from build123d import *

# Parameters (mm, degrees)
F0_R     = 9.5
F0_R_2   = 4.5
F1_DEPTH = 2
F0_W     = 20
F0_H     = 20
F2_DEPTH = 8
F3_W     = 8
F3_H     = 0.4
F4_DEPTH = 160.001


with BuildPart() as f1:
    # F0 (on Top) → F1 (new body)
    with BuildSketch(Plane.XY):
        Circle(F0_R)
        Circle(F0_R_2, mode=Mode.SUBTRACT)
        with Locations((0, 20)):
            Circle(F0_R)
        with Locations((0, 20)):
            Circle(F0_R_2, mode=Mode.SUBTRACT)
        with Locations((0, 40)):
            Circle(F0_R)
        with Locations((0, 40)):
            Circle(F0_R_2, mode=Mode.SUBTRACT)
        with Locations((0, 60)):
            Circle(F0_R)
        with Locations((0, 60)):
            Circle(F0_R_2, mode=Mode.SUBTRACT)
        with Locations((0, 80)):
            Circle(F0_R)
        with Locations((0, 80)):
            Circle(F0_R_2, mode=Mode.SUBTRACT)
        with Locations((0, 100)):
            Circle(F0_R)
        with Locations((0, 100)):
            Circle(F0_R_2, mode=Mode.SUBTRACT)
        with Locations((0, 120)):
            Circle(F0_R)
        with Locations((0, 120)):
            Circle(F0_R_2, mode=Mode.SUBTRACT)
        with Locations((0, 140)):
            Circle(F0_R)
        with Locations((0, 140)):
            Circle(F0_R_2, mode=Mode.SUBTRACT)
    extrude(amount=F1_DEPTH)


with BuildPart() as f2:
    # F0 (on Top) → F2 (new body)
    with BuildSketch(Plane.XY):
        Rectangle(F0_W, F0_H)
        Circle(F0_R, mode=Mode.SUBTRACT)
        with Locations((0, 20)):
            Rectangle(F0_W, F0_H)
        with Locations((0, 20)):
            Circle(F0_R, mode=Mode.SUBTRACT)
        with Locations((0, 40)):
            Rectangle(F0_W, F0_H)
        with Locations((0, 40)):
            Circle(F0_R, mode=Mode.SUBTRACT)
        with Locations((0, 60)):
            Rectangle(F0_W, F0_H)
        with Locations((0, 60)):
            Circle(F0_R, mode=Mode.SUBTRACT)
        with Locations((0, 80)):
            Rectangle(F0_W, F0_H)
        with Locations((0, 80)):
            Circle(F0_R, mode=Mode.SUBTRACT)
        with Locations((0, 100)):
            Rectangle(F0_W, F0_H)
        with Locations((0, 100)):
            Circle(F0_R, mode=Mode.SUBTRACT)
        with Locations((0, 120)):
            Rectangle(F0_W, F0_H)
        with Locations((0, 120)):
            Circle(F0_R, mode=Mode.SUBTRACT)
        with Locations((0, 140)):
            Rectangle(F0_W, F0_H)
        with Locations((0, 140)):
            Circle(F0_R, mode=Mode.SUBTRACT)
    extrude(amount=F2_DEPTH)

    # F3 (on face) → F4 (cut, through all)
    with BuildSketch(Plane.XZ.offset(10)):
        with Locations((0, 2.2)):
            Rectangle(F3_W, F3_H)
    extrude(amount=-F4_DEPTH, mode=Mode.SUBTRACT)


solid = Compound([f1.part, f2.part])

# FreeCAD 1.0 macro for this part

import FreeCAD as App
import Part
import Sketcher
from FreeCAD import Vector

doc = App.newDocument("Part")
body = doc.addObject("PartDesign::Body", "Body")
body.AllowCompound = True

# Sketch on XY plane
sketch1 = body.newObject("Sketcher::SketchObject", "Sketch")
sketch1.AttachmentSupport = (doc.getObject("XY_Plane"), [""])
sketch1.MapMode = "FlatFace"
sketch1.addGeometry(Part.Circle(Vector(0, 0, 0), Vector(0, 0, 1), 9.5), False)
sketch1.addGeometry(Part.Circle(Vector(0, 0, 0), Vector(0, 0, 1), 4.5), False)
sketch1.addGeometry(Part.Circle(Vector(0, 20, 0), Vector(0, 0, 1), 9.5), False)
sketch1.addGeometry(Part.Circle(Vector(0, 20, 0), Vector(0, 0, 1), 4.5), False)
sketch1.addGeometry(Part.Circle(Vector(0, 40, 0), Vector(0, 0, 1), 9.5), False)
sketch1.addGeometry(Part.Circle(Vector(0, 40, 0), Vector(0, 0, 1), 4.5), False)
sketch1.addGeometry(Part.Circle(Vector(0, 60, 0), Vector(0, 0, 1), 9.5), False)
sketch1.addGeometry(Part.Circle(Vector(0, 60, 0), Vector(0, 0, 1), 4.5), False)
sketch1.addGeometry(Part.Circle(Vector(0, 80, 0), Vector(0, 0, 1), 9.5), False)
sketch1.addGeometry(Part.Circle(Vector(0, 80, 0), Vector(0, 0, 1), 4.5), False)
sketch1.addGeometry(Part.Circle(Vector(0, 100, 0), Vector(0, 0, 1), 9.5), False)
sketch1.addGeometry(Part.Circle(Vector(0, 100, 0), Vector(0, 0, 1), 4.5), False)
sketch1.addGeometry(Part.Circle(Vector(0, 120, 0), Vector(0, 0, 1), 9.5), False)
sketch1.addGeometry(Part.Circle(Vector(0, 120, 0), Vector(0, 0, 1), 4.5), False)
sketch1.addGeometry(Part.Circle(Vector(0, 140, 0), Vector(0, 0, 1), 9.5), False)
sketch1.addGeometry(Part.Circle(Vector(0, 140, 0), Vector(0, 0, 1), 4.5), False)
sketch1.addConstraint(Sketcher.Constraint("Coincident", 0, 3, -1, 1))
sketch1.addConstraint(Sketcher.Constraint("Coincident", 1, 3, -1, 1))
sketch1.addConstraint(Sketcher.Constraint("Coincident", 3, 3, 2, 3))
sketch1.addConstraint(Sketcher.Constraint("Coincident", 5, 3, 4, 3))
sketch1.addConstraint(Sketcher.Constraint("Coincident", 7, 3, 6, 3))
sketch1.addConstraint(Sketcher.Constraint("Coincident", 9, 3, 8, 3))
sketch1.addConstraint(Sketcher.Constraint("Coincident", 11, 3, 10, 3))
sketch1.addConstraint(Sketcher.Constraint("Coincident", 13, 3, 12, 3))
sketch1.addConstraint(Sketcher.Constraint("Coincident", 15, 3, 14, 3))
sketch1.addConstraint(Sketcher.Constraint("Equal", 0, 2))
sketch1.addConstraint(Sketcher.Constraint("Equal", 1, 3))
sketch1.addConstraint(Sketcher.Constraint("Equal", 2, 4))
sketch1.addConstraint(Sketcher.Constraint("Equal", 3, 5))
sketch1.addConstraint(Sketcher.Constraint("Equal", 4, 6))
sketch1.addConstraint(Sketcher.Constraint("Equal", 5, 7))
sketch1.addConstraint(Sketcher.Constraint("Equal", 6, 8))
sketch1.addConstraint(Sketcher.Constraint("Equal", 7, 9))
sketch1.addConstraint(Sketcher.Constraint("Equal", 8, 10))
sketch1.addConstraint(Sketcher.Constraint("Equal", 9, 11))
sketch1.addConstraint(Sketcher.Constraint("Equal", 10, 12))
sketch1.addConstraint(Sketcher.Constraint("Equal", 11, 13))
sketch1.addConstraint(Sketcher.Constraint("Equal", 12, 14))
sketch1.addConstraint(Sketcher.Constraint("Equal", 13, 15))
sketch1.addConstraint(Sketcher.Constraint("PointOnObject", 2, 3, -2))
sketch1.addConstraint(Sketcher.Constraint("PointOnObject", 4, 3, -2))
sketch1.addConstraint(Sketcher.Constraint("PointOnObject", 6, 3, -2))
sketch1.addConstraint(Sketcher.Constraint("PointOnObject", 8, 3, -2))
sketch1.addConstraint(Sketcher.Constraint("PointOnObject", 10, 3, -2))
sketch1.addConstraint(Sketcher.Constraint("PointOnObject", 12, 3, -2))
sketch1.addConstraint(Sketcher.Constraint("PointOnObject", 14, 3, -2))
sketch1.addConstraint(Sketcher.Constraint("Diameter", 0, 19.0))
sketch1.addConstraint(Sketcher.Constraint("Diameter", 1, 9.0))
sketch1.addConstraint(Sketcher.Constraint("DistanceY", -1, 1, 2, 3, 20.0))
sketch1.addConstraint(Sketcher.Constraint("DistanceY", -1, 1, 4, 3, 40.0))
sketch1.addConstraint(Sketcher.Constraint("DistanceY", -1, 1, 6, 3, 60.0))
sketch1.addConstraint(Sketcher.Constraint("DistanceY", -1, 1, 8, 3, 80.0))
sketch1.addConstraint(Sketcher.Constraint("DistanceY", -1, 1, 10, 3, 100.0))
sketch1.addConstraint(Sketcher.Constraint("DistanceY", -1, 1, 12, 3, 120.0))
sketch1.addConstraint(Sketcher.Constraint("DistanceY", -1, 1, 14, 3, 140.0))
pad1 = body.newObject("PartDesign::Pad", "Pad")
pad1.Profile = sketch1
pad1.Length = 2
body2 = doc.addObject("PartDesign::Body", "Body001")

# Sketch on XY plane
sketch2 = body2.newObject("Sketcher::SketchObject", "Sketch001")
sketch2.AttachmentSupport = (doc.getObject("XY_Plane001"), [""])
sketch2.MapMode = "FlatFace"
sketch2.addGeometry(Part.LineSegment(Vector(-10, -10, 0), Vector(10, -10, 0)), False)
sketch2.addGeometry(Part.LineSegment(Vector(10, -10, 0), Vector(10, 150, 0)), False)
sketch2.addGeometry(Part.LineSegment(Vector(10, 150, 0), Vector(-10, 150, 0)), False)
sketch2.addGeometry(Part.LineSegment(Vector(-10, 150, 0), Vector(-10, -10, 0)), False)
sketch2.addGeometry(Part.Circle(Vector(0, 0, 0), Vector(0, 0, 1), 10), False)
sketch2.addGeometry(Part.Circle(Vector(0, 20, 0), Vector(0, 0, 1), 10), False)
sketch2.addGeometry(Part.Circle(Vector(0, 40, 0), Vector(0, 0, 1), 10), False)
sketch2.addGeometry(Part.Circle(Vector(0, 60, 0), Vector(0, 0, 1), 10), False)
sketch2.addGeometry(Part.Circle(Vector(0, 80, 0), Vector(0, 0, 1), 10), False)
sketch2.addGeometry(Part.Circle(Vector(0, 100, 0), Vector(0, 0, 1), 10), False)
sketch2.addGeometry(Part.Circle(Vector(0, 120, 0), Vector(0, 0, 1), 10), False)
sketch2.addGeometry(Part.Circle(Vector(0, 140, 0), Vector(0, 0, 1), 10), False)
sketch2.addConstraint(Sketcher.Constraint("Coincident", 0, 2, 1, 1))
sketch2.addConstraint(Sketcher.Constraint("Coincident", 1, 2, 2, 1))
sketch2.addConstraint(Sketcher.Constraint("Coincident", 2, 2, 3, 1))
sketch2.addConstraint(Sketcher.Constraint("Coincident", 3, 2, 0, 1))
sketch2.addConstraint(Sketcher.Constraint("Horizontal", 0))
sketch2.addConstraint(Sketcher.Constraint("Vertical", 1))
sketch2.addConstraint(Sketcher.Constraint("Horizontal", 2))
sketch2.addConstraint(Sketcher.Constraint("Vertical", 3))
sketch2.addConstraint(Sketcher.Constraint("Coincident", 4, 3, -1, 1))
sketch2.addConstraint(Sketcher.Constraint("Equal", 4, 5))
sketch2.addConstraint(Sketcher.Constraint("Equal", 5, 6))
sketch2.addConstraint(Sketcher.Constraint("Equal", 6, 7))
sketch2.addConstraint(Sketcher.Constraint("Equal", 7, 8))
sketch2.addConstraint(Sketcher.Constraint("Equal", 8, 9))
sketch2.addConstraint(Sketcher.Constraint("Equal", 9, 10))
sketch2.addConstraint(Sketcher.Constraint("Equal", 10, 11))
sketch2.addConstraint(Sketcher.Constraint("PointOnObject", 5, 3, -2))
sketch2.addConstraint(Sketcher.Constraint("PointOnObject", 6, 3, -2))
sketch2.addConstraint(Sketcher.Constraint("PointOnObject", 7, 3, -2))
sketch2.addConstraint(Sketcher.Constraint("PointOnObject", 8, 3, -2))
sketch2.addConstraint(Sketcher.Constraint("PointOnObject", 9, 3, -2))
sketch2.addConstraint(Sketcher.Constraint("PointOnObject", 10, 3, -2))
sketch2.addConstraint(Sketcher.Constraint("PointOnObject", 11, 3, -2))
sketch2.addConstraint(Sketcher.Constraint("Diameter", 4, 19.0))
sketch2.addConstraint(Sketcher.Constraint("DistanceX", 0, 1, 0, 2, 20.0))
sketch2.addConstraint(Sketcher.Constraint("DistanceY", 1, 1, 1, 2, 160.0))
sketch2.addConstraint(Sketcher.Constraint("DistanceY", -1, 1, 5, 3, 20.0))
sketch2.addConstraint(Sketcher.Constraint("DistanceY", -1, 1, 6, 3, 40.0))
sketch2.addConstraint(Sketcher.Constraint("DistanceY", -1, 1, 7, 3, 60.0))
sketch2.addConstraint(Sketcher.Constraint("DistanceY", -1, 1, 8, 3, 80.0))
sketch2.addConstraint(Sketcher.Constraint("DistanceY", -1, 1, 9, 3, 100.0))
sketch2.addConstraint(Sketcher.Constraint("DistanceY", -1, 1, 10, 3, 120.0))
sketch2.addConstraint(Sketcher.Constraint("DistanceY", -1, 1, 11, 3, 140.0))
sketch2.addConstraint(Sketcher.Constraint("DistanceX", -1, 1, 0, 2, 10.0))
sketch2.addConstraint(Sketcher.Constraint("DistanceY", 0, 2, -1, 1, 10.0))
pad2 = body2.newObject("PartDesign::Pad", "Pad001")
pad2.Profile = sketch2
pad2.Length = 8

# Sketch on XZ plane
sketch3 = body2.newObject("Sketcher::SketchObject", "Sketch002")
sketch3.AttachmentSupport = (doc.getObject("XZ_Plane001"), [""])
sketch3.MapMode = "FlatFace"
sketch3.AttachmentOffset = App.Placement(Vector(0, 0, 10), App.Rotation())
sketch3.addGeometry(Part.LineSegment(Vector(-4, 2.4, 0), Vector(-4, 2, 0)), False)
sketch3.addGeometry(Part.LineSegment(Vector(-4, 2, 0), Vector(4, 2, 0)), False)
sketch3.addGeometry(Part.LineSegment(Vector(4, 2, 0), Vector(4, 2.4, 0)), False)
sketch3.addGeometry(Part.LineSegment(Vector(4, 2.4, 0), Vector(-4, 2.4, 0)), False)
sketch3.addConstraint(Sketcher.Constraint("Coincident", 0, 2, 1, 1))
sketch3.addConstraint(Sketcher.Constraint("Coincident", 1, 2, 2, 1))
sketch3.addConstraint(Sketcher.Constraint("Coincident", 2, 2, 3, 1))
sketch3.addConstraint(Sketcher.Constraint("Coincident", 3, 2, 0, 1))
sketch3.addConstraint(Sketcher.Constraint("Vertical", 0))
sketch3.addConstraint(Sketcher.Constraint("Horizontal", 1))
sketch3.addConstraint(Sketcher.Constraint("Vertical", 2))
sketch3.addConstraint(Sketcher.Constraint("Horizontal", 3))
sketch3.addConstraint(Sketcher.Constraint("DistanceX", 1, 1, 1, 2, 8.0))
sketch3.addConstraint(Sketcher.Constraint("DistanceY", 0, 2, 0, 1, 0.4))
sketch3.addConstraint(Sketcher.Constraint("DistanceX", 0, 2, -1, 1, 4.0))
sketch3.addConstraint(Sketcher.Constraint("DistanceY", -1, 1, 0, 2, 2.0))
pocket1 = body2.newObject("PartDesign::Pocket", "Pocket")
pocket1.Profile = sketch3
pocket1.Type = "ThroughAll"

doc.recompute()
